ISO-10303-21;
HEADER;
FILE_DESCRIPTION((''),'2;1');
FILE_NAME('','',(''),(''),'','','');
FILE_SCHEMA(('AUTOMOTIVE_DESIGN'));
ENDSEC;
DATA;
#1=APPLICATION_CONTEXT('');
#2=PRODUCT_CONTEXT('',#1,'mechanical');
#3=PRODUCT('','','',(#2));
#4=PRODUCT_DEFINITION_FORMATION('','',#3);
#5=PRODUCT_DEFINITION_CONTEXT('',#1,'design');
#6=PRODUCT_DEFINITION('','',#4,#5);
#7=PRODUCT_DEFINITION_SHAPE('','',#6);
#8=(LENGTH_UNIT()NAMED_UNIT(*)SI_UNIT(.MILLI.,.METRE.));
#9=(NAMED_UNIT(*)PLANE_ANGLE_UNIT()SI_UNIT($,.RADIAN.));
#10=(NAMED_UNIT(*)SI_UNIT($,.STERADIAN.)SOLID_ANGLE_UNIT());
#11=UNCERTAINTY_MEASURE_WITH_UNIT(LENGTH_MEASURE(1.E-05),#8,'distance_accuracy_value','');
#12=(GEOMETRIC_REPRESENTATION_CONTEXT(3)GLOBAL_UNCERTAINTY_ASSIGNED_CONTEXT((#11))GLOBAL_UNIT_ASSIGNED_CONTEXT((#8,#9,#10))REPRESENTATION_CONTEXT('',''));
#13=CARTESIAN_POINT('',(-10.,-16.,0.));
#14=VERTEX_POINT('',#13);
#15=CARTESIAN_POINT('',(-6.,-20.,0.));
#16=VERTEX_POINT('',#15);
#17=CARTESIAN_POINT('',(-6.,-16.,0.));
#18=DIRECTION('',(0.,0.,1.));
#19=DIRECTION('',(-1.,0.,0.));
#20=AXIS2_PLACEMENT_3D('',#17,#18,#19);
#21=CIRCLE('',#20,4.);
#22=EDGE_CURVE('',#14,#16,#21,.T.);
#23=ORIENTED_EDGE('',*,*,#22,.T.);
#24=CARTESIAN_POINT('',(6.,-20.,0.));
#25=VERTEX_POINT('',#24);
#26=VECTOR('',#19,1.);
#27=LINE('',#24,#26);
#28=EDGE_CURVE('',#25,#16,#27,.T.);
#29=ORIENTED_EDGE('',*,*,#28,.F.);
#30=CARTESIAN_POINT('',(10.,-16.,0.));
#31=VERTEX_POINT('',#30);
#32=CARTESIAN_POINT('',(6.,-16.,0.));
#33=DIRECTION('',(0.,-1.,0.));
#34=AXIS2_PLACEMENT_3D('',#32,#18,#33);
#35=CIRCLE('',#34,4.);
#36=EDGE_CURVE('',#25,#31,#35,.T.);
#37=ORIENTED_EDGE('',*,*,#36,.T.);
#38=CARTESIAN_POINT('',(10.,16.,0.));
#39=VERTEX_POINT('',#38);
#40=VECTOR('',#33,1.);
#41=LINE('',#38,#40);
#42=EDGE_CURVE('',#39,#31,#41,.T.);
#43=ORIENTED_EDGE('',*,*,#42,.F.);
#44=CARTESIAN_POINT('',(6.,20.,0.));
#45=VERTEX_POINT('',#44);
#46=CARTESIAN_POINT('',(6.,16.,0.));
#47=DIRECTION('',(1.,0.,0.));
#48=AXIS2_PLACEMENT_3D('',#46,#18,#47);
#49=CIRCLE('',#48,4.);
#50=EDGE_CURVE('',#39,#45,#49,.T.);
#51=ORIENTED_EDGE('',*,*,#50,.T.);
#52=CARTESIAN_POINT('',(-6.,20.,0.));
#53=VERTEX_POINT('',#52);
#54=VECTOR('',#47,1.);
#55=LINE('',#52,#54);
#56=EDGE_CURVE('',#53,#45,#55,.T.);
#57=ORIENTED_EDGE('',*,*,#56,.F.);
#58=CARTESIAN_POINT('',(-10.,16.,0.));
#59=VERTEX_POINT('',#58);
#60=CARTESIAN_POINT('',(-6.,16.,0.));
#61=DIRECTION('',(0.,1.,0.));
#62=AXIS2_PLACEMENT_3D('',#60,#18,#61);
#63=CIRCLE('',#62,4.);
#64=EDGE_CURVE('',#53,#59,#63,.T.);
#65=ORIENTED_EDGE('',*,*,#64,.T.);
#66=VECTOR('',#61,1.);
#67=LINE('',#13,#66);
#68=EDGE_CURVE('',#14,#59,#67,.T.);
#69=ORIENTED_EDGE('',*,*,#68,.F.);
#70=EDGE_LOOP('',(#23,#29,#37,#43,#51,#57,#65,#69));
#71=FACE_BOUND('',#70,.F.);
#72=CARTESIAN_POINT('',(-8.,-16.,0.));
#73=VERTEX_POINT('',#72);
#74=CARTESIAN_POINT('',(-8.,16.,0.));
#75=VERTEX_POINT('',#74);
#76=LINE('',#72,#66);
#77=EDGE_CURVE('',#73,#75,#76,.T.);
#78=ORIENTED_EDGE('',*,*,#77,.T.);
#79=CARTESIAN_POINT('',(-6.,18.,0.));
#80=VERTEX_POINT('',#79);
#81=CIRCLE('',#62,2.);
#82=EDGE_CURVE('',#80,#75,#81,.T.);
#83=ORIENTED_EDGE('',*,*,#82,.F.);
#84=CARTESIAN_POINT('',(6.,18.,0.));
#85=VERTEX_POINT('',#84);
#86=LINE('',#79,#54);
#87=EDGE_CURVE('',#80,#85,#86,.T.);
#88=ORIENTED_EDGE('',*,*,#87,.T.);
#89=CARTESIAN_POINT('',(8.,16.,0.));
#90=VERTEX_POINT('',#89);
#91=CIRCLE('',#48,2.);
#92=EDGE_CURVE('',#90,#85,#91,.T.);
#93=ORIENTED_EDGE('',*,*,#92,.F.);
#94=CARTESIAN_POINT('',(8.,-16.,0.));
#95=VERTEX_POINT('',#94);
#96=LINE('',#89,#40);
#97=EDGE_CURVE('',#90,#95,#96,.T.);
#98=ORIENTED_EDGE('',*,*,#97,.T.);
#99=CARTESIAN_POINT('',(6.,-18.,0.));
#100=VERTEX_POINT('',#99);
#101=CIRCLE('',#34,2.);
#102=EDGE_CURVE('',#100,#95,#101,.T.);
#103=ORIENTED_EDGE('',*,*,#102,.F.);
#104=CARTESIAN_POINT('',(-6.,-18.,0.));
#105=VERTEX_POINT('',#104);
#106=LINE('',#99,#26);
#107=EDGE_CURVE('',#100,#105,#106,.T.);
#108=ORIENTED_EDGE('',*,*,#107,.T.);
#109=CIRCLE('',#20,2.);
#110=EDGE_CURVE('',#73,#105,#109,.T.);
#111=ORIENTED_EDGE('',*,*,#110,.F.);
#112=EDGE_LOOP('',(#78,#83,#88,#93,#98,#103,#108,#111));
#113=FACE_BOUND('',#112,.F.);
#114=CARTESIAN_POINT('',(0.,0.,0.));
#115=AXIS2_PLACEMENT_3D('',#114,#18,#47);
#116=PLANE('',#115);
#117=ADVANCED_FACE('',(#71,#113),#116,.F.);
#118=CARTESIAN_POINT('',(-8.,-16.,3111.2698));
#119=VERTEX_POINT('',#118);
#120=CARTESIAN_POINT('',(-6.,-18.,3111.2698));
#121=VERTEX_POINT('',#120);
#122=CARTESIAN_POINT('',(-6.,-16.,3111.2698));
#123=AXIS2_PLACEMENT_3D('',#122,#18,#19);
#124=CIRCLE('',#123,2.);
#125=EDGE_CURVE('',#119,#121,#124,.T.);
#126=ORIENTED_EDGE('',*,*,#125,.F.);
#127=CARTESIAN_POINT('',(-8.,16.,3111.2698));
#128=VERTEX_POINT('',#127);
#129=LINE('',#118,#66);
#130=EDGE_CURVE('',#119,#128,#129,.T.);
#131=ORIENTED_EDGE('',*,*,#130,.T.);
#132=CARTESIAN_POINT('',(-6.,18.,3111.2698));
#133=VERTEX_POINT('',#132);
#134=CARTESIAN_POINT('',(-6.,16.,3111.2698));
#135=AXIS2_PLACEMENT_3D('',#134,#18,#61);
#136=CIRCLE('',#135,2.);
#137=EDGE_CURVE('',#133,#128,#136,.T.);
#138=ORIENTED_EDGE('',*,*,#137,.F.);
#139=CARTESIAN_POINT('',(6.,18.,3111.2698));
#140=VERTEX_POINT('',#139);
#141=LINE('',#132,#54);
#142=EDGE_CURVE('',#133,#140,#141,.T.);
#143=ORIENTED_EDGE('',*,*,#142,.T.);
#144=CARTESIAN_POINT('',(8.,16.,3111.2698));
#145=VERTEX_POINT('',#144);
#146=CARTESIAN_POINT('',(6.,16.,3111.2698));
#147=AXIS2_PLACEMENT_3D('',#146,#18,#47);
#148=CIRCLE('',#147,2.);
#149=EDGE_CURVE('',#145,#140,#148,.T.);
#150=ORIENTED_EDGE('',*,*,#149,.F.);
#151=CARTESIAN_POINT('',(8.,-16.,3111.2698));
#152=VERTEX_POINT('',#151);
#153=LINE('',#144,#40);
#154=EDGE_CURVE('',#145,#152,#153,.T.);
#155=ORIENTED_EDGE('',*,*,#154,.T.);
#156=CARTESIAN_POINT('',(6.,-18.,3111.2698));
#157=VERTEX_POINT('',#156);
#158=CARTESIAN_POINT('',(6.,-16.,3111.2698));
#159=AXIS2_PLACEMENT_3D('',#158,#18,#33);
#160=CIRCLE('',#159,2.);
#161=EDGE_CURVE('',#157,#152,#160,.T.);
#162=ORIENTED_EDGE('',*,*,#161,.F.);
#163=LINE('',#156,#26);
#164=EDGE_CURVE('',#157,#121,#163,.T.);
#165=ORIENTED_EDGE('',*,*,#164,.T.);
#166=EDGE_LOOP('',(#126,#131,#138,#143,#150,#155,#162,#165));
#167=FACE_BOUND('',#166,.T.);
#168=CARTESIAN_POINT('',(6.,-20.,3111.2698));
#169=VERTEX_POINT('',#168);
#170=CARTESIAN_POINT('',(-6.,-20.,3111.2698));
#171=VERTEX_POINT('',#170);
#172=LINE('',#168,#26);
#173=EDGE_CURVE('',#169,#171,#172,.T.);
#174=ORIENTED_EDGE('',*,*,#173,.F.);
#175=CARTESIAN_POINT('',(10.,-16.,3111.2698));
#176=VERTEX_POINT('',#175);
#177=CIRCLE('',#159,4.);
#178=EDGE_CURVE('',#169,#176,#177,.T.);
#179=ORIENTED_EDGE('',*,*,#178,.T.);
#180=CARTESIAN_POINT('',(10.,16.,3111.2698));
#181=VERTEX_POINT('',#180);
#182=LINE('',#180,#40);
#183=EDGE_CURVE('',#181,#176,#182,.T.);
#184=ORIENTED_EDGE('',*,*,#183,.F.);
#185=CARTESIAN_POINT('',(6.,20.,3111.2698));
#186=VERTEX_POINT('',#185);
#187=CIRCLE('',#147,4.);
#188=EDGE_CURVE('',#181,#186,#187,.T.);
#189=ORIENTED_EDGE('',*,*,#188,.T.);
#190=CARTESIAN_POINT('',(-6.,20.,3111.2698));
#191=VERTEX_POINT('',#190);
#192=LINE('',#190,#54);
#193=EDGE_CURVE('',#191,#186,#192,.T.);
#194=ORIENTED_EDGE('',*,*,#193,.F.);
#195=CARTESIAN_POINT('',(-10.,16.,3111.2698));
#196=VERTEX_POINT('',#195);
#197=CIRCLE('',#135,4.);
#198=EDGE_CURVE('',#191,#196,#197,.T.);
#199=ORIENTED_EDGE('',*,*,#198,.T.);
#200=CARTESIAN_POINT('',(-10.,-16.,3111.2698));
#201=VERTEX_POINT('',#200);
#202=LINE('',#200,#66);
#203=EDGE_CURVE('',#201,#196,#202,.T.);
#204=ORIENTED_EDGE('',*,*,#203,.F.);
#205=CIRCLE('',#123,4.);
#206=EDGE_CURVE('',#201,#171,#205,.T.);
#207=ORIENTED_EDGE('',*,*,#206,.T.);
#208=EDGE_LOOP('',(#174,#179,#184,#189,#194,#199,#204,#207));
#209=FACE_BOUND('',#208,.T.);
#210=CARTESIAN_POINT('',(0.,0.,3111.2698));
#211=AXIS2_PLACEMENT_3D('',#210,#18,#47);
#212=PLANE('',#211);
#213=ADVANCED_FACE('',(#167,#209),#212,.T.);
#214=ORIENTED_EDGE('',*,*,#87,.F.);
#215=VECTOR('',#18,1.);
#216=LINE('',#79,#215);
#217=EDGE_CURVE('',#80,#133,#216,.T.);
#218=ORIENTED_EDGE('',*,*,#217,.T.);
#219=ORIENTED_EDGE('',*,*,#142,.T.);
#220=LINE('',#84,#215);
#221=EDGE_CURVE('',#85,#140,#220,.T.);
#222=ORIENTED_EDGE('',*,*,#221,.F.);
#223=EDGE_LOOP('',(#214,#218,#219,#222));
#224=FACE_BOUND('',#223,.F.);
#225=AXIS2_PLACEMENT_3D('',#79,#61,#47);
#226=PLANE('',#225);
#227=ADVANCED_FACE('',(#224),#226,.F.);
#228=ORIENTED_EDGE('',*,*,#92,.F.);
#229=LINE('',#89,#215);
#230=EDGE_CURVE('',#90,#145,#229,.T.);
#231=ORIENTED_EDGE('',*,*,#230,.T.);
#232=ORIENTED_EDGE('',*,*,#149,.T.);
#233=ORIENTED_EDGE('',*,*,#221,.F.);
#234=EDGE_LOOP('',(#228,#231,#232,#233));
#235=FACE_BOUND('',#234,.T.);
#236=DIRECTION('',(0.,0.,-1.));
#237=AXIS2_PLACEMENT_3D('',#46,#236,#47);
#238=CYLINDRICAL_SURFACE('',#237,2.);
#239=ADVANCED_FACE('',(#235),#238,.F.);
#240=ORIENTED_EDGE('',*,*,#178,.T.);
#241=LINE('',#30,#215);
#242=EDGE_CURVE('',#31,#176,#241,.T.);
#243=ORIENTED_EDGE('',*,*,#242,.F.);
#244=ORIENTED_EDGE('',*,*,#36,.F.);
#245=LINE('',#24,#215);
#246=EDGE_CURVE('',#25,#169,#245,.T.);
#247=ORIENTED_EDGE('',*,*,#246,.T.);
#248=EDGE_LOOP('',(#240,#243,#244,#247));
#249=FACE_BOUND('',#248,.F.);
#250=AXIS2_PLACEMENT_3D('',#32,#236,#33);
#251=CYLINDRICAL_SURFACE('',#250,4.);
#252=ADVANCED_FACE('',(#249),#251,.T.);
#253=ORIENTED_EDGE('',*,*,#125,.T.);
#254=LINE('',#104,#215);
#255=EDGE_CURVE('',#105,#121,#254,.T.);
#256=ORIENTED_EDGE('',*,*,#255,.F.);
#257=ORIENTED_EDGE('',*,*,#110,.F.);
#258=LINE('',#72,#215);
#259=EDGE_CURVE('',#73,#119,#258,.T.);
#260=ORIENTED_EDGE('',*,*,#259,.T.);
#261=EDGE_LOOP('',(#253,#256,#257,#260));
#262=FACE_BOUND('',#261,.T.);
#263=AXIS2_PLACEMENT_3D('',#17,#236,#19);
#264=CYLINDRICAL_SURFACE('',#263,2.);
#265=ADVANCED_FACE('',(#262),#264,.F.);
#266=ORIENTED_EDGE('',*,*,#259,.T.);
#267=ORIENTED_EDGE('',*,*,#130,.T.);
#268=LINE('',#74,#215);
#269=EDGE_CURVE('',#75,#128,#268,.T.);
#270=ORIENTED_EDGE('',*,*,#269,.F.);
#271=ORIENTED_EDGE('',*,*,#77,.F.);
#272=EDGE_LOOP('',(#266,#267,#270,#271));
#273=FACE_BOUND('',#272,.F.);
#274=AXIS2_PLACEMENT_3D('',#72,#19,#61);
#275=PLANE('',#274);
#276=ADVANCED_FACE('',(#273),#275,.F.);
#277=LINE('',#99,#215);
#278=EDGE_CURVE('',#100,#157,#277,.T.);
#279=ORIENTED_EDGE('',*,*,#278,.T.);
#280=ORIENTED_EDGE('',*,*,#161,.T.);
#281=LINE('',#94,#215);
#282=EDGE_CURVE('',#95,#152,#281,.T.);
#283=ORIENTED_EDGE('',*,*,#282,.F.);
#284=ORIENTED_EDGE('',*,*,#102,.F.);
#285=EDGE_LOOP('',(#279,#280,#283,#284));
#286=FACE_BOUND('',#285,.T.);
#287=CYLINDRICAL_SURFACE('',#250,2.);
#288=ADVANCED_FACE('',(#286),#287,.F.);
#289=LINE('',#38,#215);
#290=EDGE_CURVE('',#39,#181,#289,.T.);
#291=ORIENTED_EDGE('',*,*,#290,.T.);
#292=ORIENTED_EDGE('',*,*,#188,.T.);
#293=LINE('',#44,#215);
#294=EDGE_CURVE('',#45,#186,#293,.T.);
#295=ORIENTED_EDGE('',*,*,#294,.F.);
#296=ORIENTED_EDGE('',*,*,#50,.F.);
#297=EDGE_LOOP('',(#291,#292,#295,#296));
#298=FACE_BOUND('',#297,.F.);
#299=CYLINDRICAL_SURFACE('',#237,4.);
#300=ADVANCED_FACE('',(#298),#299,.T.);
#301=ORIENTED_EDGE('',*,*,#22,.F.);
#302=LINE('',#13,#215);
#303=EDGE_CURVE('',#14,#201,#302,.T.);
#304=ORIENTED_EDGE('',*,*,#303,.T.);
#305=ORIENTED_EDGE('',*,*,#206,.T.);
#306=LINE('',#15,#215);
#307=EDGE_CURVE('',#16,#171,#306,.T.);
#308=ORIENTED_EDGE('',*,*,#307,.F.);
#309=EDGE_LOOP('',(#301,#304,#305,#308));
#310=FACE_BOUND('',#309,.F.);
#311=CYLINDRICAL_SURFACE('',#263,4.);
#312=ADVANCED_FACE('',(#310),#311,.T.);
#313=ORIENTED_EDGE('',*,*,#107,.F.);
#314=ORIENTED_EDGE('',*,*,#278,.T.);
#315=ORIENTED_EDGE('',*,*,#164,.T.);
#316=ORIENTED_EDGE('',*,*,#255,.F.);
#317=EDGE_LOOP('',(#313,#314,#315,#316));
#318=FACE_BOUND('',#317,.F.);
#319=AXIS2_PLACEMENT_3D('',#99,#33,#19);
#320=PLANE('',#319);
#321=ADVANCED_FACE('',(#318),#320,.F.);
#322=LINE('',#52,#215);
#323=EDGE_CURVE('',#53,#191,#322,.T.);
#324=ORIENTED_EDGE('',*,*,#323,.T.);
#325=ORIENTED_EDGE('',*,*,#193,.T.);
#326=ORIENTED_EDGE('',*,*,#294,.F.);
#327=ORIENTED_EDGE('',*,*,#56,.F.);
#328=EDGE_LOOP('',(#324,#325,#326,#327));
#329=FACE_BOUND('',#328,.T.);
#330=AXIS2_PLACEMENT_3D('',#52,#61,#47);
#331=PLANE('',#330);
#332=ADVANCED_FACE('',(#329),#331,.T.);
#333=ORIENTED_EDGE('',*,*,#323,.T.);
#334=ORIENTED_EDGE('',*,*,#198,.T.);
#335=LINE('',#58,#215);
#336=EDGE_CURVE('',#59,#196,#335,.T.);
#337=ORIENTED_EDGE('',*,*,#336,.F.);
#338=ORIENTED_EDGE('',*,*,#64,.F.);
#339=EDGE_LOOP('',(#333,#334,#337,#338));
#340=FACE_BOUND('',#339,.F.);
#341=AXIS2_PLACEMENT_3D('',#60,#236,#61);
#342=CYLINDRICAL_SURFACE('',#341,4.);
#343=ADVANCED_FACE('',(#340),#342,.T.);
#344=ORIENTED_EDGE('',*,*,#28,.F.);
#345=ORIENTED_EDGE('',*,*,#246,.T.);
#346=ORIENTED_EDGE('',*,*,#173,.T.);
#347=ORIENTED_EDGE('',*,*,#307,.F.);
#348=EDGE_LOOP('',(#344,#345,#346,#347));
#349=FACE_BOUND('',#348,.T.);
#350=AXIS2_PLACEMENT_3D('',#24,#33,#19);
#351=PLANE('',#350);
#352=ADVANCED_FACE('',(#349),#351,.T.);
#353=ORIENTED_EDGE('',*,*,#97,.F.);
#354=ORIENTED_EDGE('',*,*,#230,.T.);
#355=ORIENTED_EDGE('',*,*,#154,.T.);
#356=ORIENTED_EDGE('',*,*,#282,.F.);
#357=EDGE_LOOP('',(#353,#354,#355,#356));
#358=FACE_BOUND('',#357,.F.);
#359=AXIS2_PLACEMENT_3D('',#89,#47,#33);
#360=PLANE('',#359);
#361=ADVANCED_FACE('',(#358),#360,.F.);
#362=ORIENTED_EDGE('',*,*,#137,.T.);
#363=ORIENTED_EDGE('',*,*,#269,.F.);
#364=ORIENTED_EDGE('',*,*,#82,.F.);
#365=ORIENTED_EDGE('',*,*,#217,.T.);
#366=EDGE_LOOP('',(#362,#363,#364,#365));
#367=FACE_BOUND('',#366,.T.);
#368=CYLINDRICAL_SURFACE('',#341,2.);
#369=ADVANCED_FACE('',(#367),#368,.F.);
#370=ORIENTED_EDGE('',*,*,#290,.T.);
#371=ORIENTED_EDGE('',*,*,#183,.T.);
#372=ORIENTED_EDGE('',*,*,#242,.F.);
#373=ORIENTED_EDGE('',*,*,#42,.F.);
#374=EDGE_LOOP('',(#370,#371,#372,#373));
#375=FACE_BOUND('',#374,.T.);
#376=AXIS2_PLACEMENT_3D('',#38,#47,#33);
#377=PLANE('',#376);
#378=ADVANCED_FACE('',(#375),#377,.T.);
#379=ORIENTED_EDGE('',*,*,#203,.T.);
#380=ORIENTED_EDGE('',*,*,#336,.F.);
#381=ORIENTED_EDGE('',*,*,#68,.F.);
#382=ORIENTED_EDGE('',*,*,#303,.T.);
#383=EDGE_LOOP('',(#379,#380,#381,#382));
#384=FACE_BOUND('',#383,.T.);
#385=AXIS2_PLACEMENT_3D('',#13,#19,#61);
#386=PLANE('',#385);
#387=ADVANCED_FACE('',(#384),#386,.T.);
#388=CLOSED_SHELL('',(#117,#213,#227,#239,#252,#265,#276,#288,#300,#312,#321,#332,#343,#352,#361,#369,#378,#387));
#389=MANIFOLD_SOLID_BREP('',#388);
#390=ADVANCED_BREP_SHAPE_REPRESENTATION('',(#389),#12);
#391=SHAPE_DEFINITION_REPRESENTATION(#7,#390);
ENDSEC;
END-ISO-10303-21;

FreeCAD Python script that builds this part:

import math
import FreeCAD as App
import Part
import Sketcher

V = App.Vector

doc = App.newDocument("Part")
body = doc.addObject("PartDesign::Body", "Body")

sketch1 = doc.addObject("Sketcher::SketchObject", "Sketch")
body.addObject(sketch1)
sketch1.AttachmentSupport = (doc.XY_Plane, [""])
sketch1.MapMode = "FlatFace"
sketch1.addGeometry([
    Part.LineSegment(V(-10, 16, 0), V(-10, -16, 0)),
    Part.ArcOfCircle(Part.Circle(V(-6, -16, 0), V(0, 0, 1), 4), math.radians(180), math.radians(270)),
    Part.LineSegment(V(-6, -20, 0), V(6, -20, 0)),
    Part.ArcOfCircle(Part.Circle(V(6, -16, 0), V(0, 0, 1), 4), math.radians(-90), math.radians(0)),
    Part.LineSegment(V(10, -16, 0), V(10, 16, 0)),
    Part.ArcOfCircle(Part.Circle(V(6, 16, 0), V(0, 0, 1), 4), math.radians(0), math.radians(90)),
    Part.LineSegment(V(6, 20, 0), V(-6, 20, 0)),
    Part.ArcOfCircle(Part.Circle(V(-6, 16, 0), V(0, 0, 1), 4), math.radians(90), math.radians(180)),
    Part.ArcOfCircle(Part.Circle(V(-6, 16, 0), V(0, 0, 1), 2), math.radians(90), math.radians(180)),
    Part.LineSegment(V(-6, 18, 0), V(6, 18, 0)),
    Part.ArcOfCircle(Part.Circle(V(6, 16, 0), V(0, 0, 1), 2), math.radians(0), math.radians(90)),
    Part.LineSegment(V(8, 16, 0), V(8, -16, 0)),
    Part.ArcOfCircle(Part.Circle(V(6, -16, 0), V(0, 0, 1), 2), math.radians(-90), math.radians(0)),
    Part.LineSegment(V(6, -18, 0), V(-6, -18, 0)),
    Part.ArcOfCircle(Part.Circle(V(-6, -16, 0), V(0, 0, 1), 2), math.radians(180), math.radians(270)),
    Part.LineSegment(V(-8, -16, 0), V(-8, 16, 0)),
], False)
sketch1.addConstraint([
    Sketcher.Constraint("Tangent", 0, 2, 1, 1),
    Sketcher.Constraint("Tangent", 1, 2, 2, 1),
    Sketcher.Constraint("Tangent", 2, 2, 3, 1),
    Sketcher.Constraint("Tangent", 3, 2, 4, 1),
    Sketcher.Constraint("Tangent", 4, 2, 5, 1),
    Sketcher.Constraint("Tangent", 5, 2, 6, 1),
    Sketcher.Constraint("Tangent", 6, 2, 7, 1),
    Sketcher.Constraint("Tangent", 7, 2, 0, 1),
    Sketcher.Constraint("Tangent", 8, 1, 9, 1),
    Sketcher.Constraint("Tangent", 9, 2, 10, 2),
    Sketcher.Constraint("Tangent", 10, 1, 11, 1),
    Sketcher.Constraint("Tangent", 11, 2, 12, 2),
    Sketcher.Constraint("Tangent", 12, 1, 13, 1),
    Sketcher.Constraint("Tangent", 13, 2, 14, 2),
    Sketcher.Constraint("Tangent", 14, 1, 15, 1),
    Sketcher.Constraint("Tangent", 15, 2, 8, 2),
    Sketcher.Constraint("Vertical", 0),
    Sketcher.Constraint("Horizontal", 2),
    Sketcher.Constraint("Vertical", 4),
    Sketcher.Constraint("Horizontal", 6),
    Sketcher.Constraint("Horizontal", 9),
    Sketcher.Constraint("Vertical", 11),
    Sketcher.Constraint("Horizontal", 13),
    Sketcher.Constraint("Vertical", 15),
    Sketcher.Constraint("Coincident", 8, 3, 7, 3),
    Sketcher.Constraint("Coincident", 10, 3, 5, 3),
    Sketcher.Constraint("Coincident", 12, 3, 3, 3),
    Sketcher.Constraint("Equal", 1, 3),
    Sketcher.Constraint("Equal", 3, 5),
    Sketcher.Constraint("Equal", 5, 7),
    Sketcher.Constraint("Equal", 12, 14),
    Sketcher.Constraint("Symmetric", 1, 3, 5, 3, -1, 1),
    Sketcher.Constraint("Radius", 1, 4.0),
    Sketcher.Constraint("Radius", 8, 2.0),
    Sketcher.Constraint("DistanceX", 0, 2, -1, 1, 10.0),
    Sketcher.Constraint("DistanceY", 1, 2, -1, 1, 20.0),
])
pad1 = doc.addObject("PartDesign::Pad", "Pad")
body.addObject(pad1)
pad1.Profile = sketch1
pad1.Length = 3111.2698

doc.recompute()
